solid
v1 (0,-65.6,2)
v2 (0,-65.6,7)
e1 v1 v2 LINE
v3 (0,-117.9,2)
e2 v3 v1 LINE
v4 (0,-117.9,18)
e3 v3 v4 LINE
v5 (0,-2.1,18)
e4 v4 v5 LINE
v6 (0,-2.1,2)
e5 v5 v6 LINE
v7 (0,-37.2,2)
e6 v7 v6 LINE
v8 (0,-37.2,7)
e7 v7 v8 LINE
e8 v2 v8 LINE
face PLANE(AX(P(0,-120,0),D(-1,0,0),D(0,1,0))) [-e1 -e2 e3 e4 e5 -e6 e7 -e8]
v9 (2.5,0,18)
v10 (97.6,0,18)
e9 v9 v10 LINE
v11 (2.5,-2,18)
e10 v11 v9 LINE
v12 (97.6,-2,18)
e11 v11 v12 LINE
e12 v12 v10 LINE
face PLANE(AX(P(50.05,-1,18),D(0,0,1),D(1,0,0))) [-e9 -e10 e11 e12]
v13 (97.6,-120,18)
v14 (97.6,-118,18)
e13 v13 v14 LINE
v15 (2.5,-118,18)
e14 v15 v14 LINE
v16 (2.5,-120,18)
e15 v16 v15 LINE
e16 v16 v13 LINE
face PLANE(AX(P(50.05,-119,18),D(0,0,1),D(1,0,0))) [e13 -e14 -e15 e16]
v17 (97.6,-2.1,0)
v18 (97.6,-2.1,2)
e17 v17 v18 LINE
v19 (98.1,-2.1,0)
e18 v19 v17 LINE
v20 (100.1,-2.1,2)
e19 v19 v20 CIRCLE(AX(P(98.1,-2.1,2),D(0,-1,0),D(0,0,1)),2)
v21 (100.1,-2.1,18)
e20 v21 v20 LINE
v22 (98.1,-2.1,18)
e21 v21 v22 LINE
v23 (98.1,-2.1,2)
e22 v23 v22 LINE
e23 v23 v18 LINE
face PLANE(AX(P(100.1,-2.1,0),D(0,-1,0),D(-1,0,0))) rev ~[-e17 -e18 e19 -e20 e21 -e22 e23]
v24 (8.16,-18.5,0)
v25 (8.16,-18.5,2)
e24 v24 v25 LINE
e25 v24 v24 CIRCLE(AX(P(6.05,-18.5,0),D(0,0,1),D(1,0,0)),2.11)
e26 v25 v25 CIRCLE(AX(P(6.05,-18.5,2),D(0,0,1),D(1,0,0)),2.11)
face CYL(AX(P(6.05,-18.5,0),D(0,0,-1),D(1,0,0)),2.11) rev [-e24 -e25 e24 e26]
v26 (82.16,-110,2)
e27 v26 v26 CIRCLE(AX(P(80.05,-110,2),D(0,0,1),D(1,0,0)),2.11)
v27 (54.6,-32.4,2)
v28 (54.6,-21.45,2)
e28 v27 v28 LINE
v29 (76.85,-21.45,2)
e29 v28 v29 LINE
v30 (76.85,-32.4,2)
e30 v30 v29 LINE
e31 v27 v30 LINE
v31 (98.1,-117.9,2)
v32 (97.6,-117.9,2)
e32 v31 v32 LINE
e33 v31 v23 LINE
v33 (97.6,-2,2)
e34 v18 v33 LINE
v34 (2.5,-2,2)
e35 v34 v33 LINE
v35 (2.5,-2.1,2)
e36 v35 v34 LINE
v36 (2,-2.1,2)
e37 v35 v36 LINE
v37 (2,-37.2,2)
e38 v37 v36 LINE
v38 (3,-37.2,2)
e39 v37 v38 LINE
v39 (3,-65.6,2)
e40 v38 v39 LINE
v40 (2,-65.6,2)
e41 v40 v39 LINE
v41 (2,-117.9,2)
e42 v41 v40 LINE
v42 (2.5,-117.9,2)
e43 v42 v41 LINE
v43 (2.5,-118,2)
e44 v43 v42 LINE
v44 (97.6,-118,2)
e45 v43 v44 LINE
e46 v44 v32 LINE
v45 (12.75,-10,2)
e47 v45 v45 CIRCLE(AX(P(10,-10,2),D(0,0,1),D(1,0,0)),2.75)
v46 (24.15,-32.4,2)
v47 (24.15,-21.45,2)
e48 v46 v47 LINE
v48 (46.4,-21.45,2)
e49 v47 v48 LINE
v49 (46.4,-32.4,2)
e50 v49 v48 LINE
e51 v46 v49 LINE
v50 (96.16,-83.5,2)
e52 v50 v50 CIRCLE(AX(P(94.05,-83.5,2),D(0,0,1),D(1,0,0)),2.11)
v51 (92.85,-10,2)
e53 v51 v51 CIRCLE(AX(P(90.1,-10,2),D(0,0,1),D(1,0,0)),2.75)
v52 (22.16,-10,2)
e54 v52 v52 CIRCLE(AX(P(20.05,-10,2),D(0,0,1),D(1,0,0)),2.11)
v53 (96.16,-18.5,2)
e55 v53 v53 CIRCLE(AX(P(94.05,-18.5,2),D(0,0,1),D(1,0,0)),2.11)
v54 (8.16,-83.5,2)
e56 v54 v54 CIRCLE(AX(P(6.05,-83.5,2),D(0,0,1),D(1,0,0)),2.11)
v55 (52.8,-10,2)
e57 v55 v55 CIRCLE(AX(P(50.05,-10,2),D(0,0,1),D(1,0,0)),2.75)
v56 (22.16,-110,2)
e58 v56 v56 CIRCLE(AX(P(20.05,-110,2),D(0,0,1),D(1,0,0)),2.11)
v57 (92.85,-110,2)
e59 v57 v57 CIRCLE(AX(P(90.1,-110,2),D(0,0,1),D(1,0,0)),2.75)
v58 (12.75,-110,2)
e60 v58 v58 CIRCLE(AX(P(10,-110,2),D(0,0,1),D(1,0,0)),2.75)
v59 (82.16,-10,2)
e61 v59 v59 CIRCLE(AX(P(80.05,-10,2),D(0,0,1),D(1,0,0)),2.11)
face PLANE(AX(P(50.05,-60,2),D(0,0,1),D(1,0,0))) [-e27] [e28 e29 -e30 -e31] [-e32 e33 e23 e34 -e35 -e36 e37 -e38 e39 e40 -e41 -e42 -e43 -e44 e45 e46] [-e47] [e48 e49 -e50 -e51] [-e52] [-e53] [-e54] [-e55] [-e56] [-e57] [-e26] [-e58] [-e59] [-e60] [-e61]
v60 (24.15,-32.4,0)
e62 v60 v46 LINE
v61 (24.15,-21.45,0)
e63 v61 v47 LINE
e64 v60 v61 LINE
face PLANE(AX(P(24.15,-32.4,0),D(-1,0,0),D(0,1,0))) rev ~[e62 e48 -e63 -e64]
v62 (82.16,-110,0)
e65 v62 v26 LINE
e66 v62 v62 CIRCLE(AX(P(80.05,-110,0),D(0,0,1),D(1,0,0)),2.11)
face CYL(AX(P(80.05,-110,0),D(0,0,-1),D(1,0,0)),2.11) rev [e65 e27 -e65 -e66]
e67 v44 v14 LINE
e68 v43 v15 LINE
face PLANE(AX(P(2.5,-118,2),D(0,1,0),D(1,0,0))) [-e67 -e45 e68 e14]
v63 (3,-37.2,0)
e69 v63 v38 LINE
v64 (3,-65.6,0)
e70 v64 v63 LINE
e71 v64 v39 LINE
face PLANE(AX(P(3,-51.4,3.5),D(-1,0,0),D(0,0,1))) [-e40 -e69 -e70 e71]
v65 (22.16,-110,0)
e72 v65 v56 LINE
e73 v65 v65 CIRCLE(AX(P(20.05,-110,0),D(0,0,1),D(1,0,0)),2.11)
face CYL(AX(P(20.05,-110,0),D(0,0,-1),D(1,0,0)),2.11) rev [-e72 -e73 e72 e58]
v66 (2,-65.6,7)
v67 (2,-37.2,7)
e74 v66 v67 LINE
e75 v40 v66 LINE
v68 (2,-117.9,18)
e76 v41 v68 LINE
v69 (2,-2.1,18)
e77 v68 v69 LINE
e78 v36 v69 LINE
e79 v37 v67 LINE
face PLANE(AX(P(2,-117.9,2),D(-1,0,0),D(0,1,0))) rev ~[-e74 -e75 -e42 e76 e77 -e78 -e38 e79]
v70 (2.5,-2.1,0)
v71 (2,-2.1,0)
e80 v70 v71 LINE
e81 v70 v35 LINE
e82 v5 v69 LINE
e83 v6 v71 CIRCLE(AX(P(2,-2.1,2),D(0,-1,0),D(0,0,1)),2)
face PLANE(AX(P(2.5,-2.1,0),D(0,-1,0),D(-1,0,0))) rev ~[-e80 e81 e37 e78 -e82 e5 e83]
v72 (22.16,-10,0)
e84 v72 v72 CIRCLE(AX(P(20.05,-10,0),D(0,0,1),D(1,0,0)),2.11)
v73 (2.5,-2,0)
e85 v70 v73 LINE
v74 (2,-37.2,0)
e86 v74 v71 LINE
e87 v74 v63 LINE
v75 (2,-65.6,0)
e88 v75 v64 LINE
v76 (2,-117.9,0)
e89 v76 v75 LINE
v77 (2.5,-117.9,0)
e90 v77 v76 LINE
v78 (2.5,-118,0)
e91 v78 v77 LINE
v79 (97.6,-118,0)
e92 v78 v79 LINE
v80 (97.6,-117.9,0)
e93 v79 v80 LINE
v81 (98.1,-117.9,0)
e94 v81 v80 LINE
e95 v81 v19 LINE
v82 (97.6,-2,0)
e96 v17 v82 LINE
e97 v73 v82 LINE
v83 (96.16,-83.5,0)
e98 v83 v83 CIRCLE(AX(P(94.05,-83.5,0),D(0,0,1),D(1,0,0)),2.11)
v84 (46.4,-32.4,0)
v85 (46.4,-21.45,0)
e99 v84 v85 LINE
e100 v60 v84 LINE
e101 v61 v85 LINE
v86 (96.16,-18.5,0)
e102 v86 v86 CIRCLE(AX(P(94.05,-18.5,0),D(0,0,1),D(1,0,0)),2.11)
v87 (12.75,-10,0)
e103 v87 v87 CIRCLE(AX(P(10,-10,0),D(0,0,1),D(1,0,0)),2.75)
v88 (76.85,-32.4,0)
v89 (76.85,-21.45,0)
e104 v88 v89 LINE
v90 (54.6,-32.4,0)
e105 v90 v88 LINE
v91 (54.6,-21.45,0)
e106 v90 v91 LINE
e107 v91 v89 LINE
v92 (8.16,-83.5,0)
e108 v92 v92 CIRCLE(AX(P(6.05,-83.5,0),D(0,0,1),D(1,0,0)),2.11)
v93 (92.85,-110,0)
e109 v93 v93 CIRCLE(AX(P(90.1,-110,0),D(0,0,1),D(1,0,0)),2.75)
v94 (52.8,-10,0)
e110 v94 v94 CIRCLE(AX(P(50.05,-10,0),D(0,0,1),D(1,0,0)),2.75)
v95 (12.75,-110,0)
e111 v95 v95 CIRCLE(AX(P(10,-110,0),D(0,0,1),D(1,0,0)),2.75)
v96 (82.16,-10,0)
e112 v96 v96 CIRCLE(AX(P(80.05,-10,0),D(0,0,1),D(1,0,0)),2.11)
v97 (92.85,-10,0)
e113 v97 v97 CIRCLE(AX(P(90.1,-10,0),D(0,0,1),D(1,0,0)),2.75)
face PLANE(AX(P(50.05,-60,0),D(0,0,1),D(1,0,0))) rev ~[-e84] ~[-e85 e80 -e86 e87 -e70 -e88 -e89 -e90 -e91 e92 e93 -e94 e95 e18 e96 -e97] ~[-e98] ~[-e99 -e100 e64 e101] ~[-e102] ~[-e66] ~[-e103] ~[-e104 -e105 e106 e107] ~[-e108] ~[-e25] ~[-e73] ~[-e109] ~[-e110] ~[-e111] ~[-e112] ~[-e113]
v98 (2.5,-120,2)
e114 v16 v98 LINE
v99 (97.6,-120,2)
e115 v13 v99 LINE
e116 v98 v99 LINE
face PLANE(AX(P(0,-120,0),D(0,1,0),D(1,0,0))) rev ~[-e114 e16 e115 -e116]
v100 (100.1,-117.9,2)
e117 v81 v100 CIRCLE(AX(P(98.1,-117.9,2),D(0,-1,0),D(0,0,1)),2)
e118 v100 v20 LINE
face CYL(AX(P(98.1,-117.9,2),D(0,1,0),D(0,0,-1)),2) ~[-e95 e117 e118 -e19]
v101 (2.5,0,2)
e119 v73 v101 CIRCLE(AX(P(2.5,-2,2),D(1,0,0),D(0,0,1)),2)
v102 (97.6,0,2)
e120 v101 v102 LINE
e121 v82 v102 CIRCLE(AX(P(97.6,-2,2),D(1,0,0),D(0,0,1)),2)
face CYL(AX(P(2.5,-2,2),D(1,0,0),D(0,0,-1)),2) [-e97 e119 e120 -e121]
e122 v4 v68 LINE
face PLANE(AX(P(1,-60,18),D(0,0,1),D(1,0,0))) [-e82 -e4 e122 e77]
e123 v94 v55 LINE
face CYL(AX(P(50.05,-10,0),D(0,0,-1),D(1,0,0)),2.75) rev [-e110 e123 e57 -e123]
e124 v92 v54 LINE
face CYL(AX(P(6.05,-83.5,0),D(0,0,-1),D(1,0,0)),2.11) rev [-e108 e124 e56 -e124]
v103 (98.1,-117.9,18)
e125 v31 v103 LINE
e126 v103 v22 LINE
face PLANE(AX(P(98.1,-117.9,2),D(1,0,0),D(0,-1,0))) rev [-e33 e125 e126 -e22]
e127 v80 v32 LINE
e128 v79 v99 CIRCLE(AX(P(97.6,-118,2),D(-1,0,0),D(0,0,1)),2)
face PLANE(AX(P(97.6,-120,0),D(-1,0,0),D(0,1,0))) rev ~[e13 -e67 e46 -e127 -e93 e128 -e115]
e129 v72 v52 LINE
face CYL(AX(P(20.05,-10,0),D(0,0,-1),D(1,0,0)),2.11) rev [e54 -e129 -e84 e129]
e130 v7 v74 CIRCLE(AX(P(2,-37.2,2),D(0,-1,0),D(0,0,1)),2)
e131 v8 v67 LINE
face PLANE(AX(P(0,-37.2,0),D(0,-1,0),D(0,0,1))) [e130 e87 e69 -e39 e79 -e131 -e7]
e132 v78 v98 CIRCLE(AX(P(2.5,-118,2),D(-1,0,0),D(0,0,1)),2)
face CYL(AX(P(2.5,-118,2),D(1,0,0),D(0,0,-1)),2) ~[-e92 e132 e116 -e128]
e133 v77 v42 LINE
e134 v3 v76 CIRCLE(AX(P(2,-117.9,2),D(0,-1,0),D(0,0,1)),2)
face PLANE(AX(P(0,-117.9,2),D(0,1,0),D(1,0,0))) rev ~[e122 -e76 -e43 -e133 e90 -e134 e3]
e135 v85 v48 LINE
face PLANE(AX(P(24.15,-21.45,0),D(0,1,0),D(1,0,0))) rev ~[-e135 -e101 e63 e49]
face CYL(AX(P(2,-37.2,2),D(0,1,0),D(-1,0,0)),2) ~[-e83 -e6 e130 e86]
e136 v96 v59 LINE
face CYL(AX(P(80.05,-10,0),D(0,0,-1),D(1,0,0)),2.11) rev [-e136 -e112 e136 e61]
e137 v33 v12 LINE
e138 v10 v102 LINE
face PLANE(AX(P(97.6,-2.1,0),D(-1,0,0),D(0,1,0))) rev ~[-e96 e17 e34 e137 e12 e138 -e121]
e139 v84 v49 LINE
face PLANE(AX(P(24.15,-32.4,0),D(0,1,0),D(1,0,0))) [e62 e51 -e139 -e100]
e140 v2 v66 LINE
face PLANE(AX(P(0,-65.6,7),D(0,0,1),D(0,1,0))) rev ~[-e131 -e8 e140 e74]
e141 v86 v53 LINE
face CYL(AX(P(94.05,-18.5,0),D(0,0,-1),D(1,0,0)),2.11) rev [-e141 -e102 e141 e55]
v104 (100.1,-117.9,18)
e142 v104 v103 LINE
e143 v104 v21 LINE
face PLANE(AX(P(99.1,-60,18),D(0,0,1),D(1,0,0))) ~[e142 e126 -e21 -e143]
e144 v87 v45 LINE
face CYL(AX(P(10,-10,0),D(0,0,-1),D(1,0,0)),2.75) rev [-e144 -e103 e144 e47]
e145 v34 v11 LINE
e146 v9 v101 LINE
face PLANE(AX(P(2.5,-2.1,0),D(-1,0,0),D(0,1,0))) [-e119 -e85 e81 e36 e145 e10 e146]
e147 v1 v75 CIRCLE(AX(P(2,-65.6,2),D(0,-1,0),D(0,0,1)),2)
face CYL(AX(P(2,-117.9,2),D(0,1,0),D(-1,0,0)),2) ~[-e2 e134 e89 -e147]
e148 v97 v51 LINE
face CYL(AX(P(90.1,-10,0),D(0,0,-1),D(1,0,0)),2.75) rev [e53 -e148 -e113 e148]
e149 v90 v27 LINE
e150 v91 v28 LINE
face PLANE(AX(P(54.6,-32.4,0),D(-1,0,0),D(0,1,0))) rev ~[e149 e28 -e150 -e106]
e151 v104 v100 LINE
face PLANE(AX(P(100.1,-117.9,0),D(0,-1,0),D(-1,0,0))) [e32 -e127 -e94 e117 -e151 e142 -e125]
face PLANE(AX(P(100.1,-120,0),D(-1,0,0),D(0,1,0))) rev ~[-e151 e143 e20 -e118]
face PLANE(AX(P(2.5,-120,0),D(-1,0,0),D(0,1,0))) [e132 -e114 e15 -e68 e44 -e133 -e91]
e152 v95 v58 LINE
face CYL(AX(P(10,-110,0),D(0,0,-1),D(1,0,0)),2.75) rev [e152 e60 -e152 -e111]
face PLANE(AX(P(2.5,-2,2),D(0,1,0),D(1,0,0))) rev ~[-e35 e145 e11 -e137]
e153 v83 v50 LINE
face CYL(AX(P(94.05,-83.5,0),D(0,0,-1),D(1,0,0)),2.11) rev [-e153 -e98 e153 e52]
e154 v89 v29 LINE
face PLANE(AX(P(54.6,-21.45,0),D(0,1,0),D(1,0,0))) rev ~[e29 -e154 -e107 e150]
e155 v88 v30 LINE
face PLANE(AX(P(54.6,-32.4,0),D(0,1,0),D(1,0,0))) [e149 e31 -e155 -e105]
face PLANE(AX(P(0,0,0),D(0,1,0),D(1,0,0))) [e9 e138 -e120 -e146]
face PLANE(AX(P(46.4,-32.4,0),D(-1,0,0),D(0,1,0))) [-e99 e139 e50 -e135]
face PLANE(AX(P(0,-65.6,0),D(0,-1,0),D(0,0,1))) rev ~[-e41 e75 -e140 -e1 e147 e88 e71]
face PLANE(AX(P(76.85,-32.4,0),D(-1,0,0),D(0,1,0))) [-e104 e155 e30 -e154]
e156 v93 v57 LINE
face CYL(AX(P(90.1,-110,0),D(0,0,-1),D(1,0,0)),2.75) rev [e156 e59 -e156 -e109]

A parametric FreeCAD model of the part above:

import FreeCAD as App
import Part
import Sketcher
from FreeCAD import Vector


def edges_at(feature, points):
    """Names of the edges that pass closest to the given points."""
    edges = feature.Shape.Edges
    near = lambda p: min(range(len(edges)), key=lambda i: edges[i].distToShape(Part.Vertex(*p))[0])
    return sorted({f"Edge{near(p) + 1}" for p in points})


def add_polygon(sketch, points):
    """Adds a closed chain of lines whose ends are joined by coincident constraints."""
    first, n = sketch.GeometryCount, len(points)
    for a, b in zip(points, points[1:] + points[:1]):
        sketch.addGeometry(Part.LineSegment(App.Vector(*a, 0), App.Vector(*b, 0)), False)
    for i in range(n):
        sketch.addConstraint(Sketcher.Constraint("Coincident", first + i, 2, first + (i + 1) % n, 1))

doc = App.newDocument("Part")
body = doc.addObject("PartDesign::Body", "Body")

sketch1 = doc.addObject("Sketcher::SketchObject", "Sketch")
body.addObject(sketch1)
sketch1.AttachmentSupport = (doc.XY_Plane, [""])
sketch1.MapMode = "FlatFace"
add_polygon(sketch1, [(0, 0), (0, -120), (100.1, -120), (100.1, 0)])
sketch1.addGeometry(Part.Circle(Vector(10, -110, 0), Vector(0, 0, 1), 2.8), False)
sketch1.addGeometry(Part.Circle(Vector(20.1, -110, 0), Vector(0, 0, 1), 2.1), False)
sketch1.addGeometry(Part.Circle(Vector(6, -83.5, 0), Vector(0, 0, 1), 2.1), False)
sketch1.addGeometry(Part.Circle(Vector(80, -110, 0), Vector(0, 0, 1), 2.1), False)
sketch1.addGeometry(Part.Circle(Vector(90.1, -110, 0), Vector(0, 0, 1), 2.8), False)
sketch1.addGeometry(Part.Circle(Vector(94, -83.5, 0), Vector(0, 0, 1), 2.1), False)
sketch1.addGeometry(Part.Circle(Vector(6, -18.5, 0), Vector(0, 0, 1), 2.1), False)
sketch1.addGeometry(Part.Circle(Vector(10, -10, 0), Vector(0, 0, 1), 2.8), False)
sketch1.addGeometry(Part.Circle(Vector(20.1, -10, 0), Vector(0, 0, 1), 2.1), False)
add_polygon(sketch1, [(46.4, -32.4), (24.1, -32.4), (24.1, -21.4), (46.4, -21.4)])
add_polygon(sketch1, [(76.8, -32.4), (54.6, -32.4), (54.6, -21.4), (76.8, -21.4)])
sketch1.addGeometry(Part.Circle(Vector(50, -10, 0), Vector(0, 0, 1), 2.8), False)
sketch1.addGeometry(Part.Circle(Vector(80, -10, 0), Vector(0, 0, 1), 2.1), False)
sketch1.addGeometry(Part.Circle(Vector(94, -18.5, 0), Vector(0, 0, 1), 2.1), False)
sketch1.addGeometry(Part.Circle(Vector(90.1, -10, 0), Vector(0, 0, 1), 2.8), False)
sketch1.addConstraint([
    Sketcher.Constraint("Vertical", 0),
    Sketcher.Constraint("Horizontal", 1),
    Sketcher.Constraint("Vertical", 2),
    Sketcher.Constraint("Horizontal", 3),
    Sketcher.Constraint("Horizontal", 13),
    Sketcher.Constraint("Vertical", 14),
    Sketcher.Constraint("Horizontal", 15),
    Sketcher.Constraint("Vertical", 16),
    Sketcher.Constraint("Horizontal", 17),
    Sketcher.Constraint("Vertical", 18),
    Sketcher.Constraint("Horizontal", 19),
    Sketcher.Constraint("Vertical", 20),
    Sketcher.Constraint("Coincident", 3, 2, -1, 1),
    Sketcher.Constraint("Equal", 5, 6),
    Sketcher.Constraint("Equal", 6, 7),
    Sketcher.Constraint("Equal", 4, 8),
    Sketcher.Constraint("Equal", 7, 9),
    Sketcher.Constraint("Equal", 9, 10),
    Sketcher.Constraint("Equal", 8, 11),
    Sketcher.Constraint("Equal", 10, 12),
    Sketcher.Constraint("Equal", 11, 21),
    Sketcher.Constraint("Equal", 12, 22),
    Sketcher.Constraint("Equal", 22, 23),
    Sketcher.Constraint("Equal", 21, 24),
    Sketcher.Constraint("Horizontal", 4, 3, 5, 3),
    Sketcher.Constraint("Horizontal", 5, 3, 7, 3),
    Sketcher.Constraint("Horizontal", 7, 3, 8, 3),
    Sketcher.Constraint("Horizontal", 6, 3, 9, 3),
    Sketcher.Constraint("Horizontal", 11, 3, 12, 3),
    Sketcher.Constraint("Horizontal", 12, 3, 21, 3),
    Sketcher.Constraint("Horizontal", 21, 3, 22, 3),
    Sketcher.Constraint("Horizontal", 10, 3, 23, 3),
    Sketcher.Constraint("Horizontal", 22, 3, 24, 3),
    Sketcher.Constraint("Horizontal", 16, 2, 17, 2),
    Sketcher.Constraint("Horizontal", 15, 2, 18, 2),
    Sketcher.Constraint("Vertical", 6, 3, 10, 3),
    Sketcher.Constraint("Vertical", 4, 3, 11, 3),
    Sketcher.Constraint("Vertical", 5, 3, 12, 3),
    Sketcher.Constraint("Vertical", 7, 3, 22, 3),
    Sketcher.Constraint("Vertical", 9, 3, 23, 3),
    Sketcher.Constraint("Vertical", 8, 3, 24, 3),
    Sketcher.Constraint("Equal", 15, 17),
    Sketcher.Constraint("Diameter", 4, 5.5),
    Sketcher.Constraint("Diameter", 5, 4.22),
    Sketcher.Constraint("DistanceY", 0, 2, 0, 1, 120.0),
    Sketcher.Constraint("DistanceX", 1, 1, 1, 2, 100.1),
    Sketcher.Constraint("DistanceX", -1, 1, 4, 3, 10.0),
    Sketcher.Constraint("DistanceY", 4, 3, -1, 1, 110.0),
    Sketcher.Constraint("DistanceY", 11, 3, -1, 1, 10.0),
    Sketcher.Constraint("DistanceX", 6, 3, 5, 3, 14.0),
    Sketcher.Constraint("DistanceX", 5, 3, 7, 3, 60.0),
    Sketcher.Constraint("DistanceX", 7, 3, 9, 3, 14.0),
    Sketcher.Constraint("DistanceY", 6, 3, 10, 3, 65.0),
    Sketcher.Constraint("DistanceX", 12, 3, 21, 3, 30.0),
    Sketcher.Constraint("DistanceX", 8, 3, 1, 2, 10.0),
    Sketcher.Constraint("DistanceX", 13, 2, 13, 1, 22.25),
    Sketcher.Constraint("DistanceY", 14, 1, 14, 2, 10.95),
    Sketcher.Constraint("DistanceY", 6, 3, -1, 1, 83.5),
    Sketcher.Constraint("DistanceY", 13, 2, -1, 1, 32.4),
    Sketcher.Constraint("DistanceX", -1, 1, 15, 2, 46.4),
    Sketcher.Constraint("DistanceX", -1, 1, 17, 2, 54.6),
    Sketcher.Constraint("DistanceX", 12, 3, 13, 2, 4.1),
])
pad1 = doc.addObject("PartDesign::Pad", "Pad")
body.addObject(pad1)
pad1.Profile = sketch1
pad1.Length = 2

sketch2 = doc.addObject("Sketcher::SketchObject", "Sketch001")
body.addObject(sketch2)
sketch2.AttachmentSupport = (doc.XY_Plane, [""])
sketch2.MapMode = "FlatFace"
sketch2.AttachmentOffset = App.Placement(Vector(0, 0, 2), App.Rotation())
add_polygon(sketch2, [(0, -2.1), (0, -117.9), (2, -117.9), (2, -2.1)])
sketch2.addConstraint([
    Sketcher.Constraint("Vertical", 0),
    Sketcher.Constraint("Horizontal", 1),
    Sketcher.Constraint("Vertical", 2),
    Sketcher.Constraint("Horizontal", 3),
    Sketcher.Constraint("PointOnObject", 0, 2, -2),
    Sketcher.Constraint("DistanceX", 1, 1, 1, 2, 2.0),
    Sketcher.Constraint("DistanceY", 0, 2, 0, 1, 115.8),
    Sketcher.Constraint("DistanceY", 0, 2, -1, 1, 117.9),
])
pad2 = doc.addObject("PartDesign::Pad", "Pad001")
body.addObject(pad2)
pad2.Profile = sketch2
pad2.Length = 16
doc.recompute()

datumplane = doc.addObject("PartDesign::Plane", "DatumPlane")
body.addObject(datumplane)
datumplane.AttachmentSupport = (doc.YZ_Plane, [""])
datumplane.MapMode = "FlatFace"
datumplane.AttachmentOffset = App.Placement(Vector(0, 0, 50.05), App.Rotation())
mirrored = doc.addObject("PartDesign::Mirrored", "Mirrored")
body.addObject(mirrored)
mirrored.Originals = [pad2]
mirrored.MirrorPlane = (datumplane, [""])
body.Tip = mirrored

sketch3 = doc.addObject("Sketcher::SketchObject", "Sketch002")
body.addObject(sketch3)
sketch3.AttachmentSupport = (doc.XY_Plane, [""])
sketch3.MapMode = "FlatFace"
sketch3.AttachmentOffset = App.Placement(Vector(0, 0, 2), App.Rotation())
add_polygon(sketch3, [(2.5, 0), (2.5, -2), (97.6, -2), (97.6, 0)])
add_polygon(sketch3, [(2.5, -118), (2.5, -120), (97.6, -120), (97.6, -118)])
sketch3.addConstraint([
    Sketcher.Constraint("Vertical", 0),
    Sketcher.Constraint("Horizontal", 1),
    Sketcher.Constraint("Vertical", 2),
    Sketcher.Constraint("Horizontal", 3),
    Sketcher.Constraint("Vertical", 4),
    Sketcher.Constraint("Horizontal", 5),
    Sketcher.Constraint("Vertical", 6),
    Sketcher.Constraint("Horizontal", 7),
    Sketcher.Constraint("PointOnObject", 2, 2, -1),
    Sketcher.Constraint("Vertical", 3, 2, 4, 2),
    Sketcher.Constraint("Vertical", 2, 2, 5, 2),
    Sketcher.Constraint("Equal", 2, 4),
    Sketcher.Constraint("DistanceY", 0, 2, 0, 1, 2.0),
    Sketcher.Constraint("DistanceX", 1, 1, 1, 2, 95.1),
    Sketcher.Constraint("DistanceY", 4, 2, -1, 1, 120.0),
    Sketcher.Constraint("DistanceX", -1, 1, 0, 2, 2.5),
])
pad3 = doc.addObject("PartDesign::Pad", "Pad002")
body.addObject(pad3)
pad3.Profile = sketch3
pad3.Length = 16

sketch4 = doc.addObject("Sketcher::SketchObject", "Sketch003")
body.addObject(sketch4)
sketch4.AttachmentSupport = (doc.XY_Plane, [""])
sketch4.MapMode = "FlatFace"
add_polygon(sketch4, [(2.5, 0), (2.5, -2.1), (0, -2.1), (0, 0)])
add_polygon(sketch4, [(100.1, -117.9), (100.1, -120), (97.6, -120), (97.6, -117.9)])
add_polygon(sketch4, [(2.5, -117.9), (2.5, -120), (0, -120), (0, -117.9)])
add_polygon(sketch4, [(100.1, 0), (100.1, -2.1), (97.6, -2.1), (97.6, 0)])
sketch4.addConstraint([
    Sketcher.Constraint("Vertical", 0),
    Sketcher.Constraint("Horizontal", 1),
    Sketcher.Constraint("Vertical", 2),
    Sketcher.Constraint("Horizontal", 3),
    Sketcher.Constraint("Vertical", 4),
    Sketcher.Constraint("Horizontal", 5),
    Sketcher.Constraint("Vertical", 6),
    Sketcher.Constraint("Horizontal", 7),
    Sketcher.Constraint("Vertical", 8),
    Sketcher.Constraint("Horizontal", 9),
    Sketcher.Constraint("Vertical", 10),
    Sketcher.Constraint("Horizontal", 11),
    Sketcher.Constraint("Vertical", 12),
    Sketcher.Constraint("Horizontal", 13),
    Sketcher.Constraint("Vertical", 14),
    Sketcher.Constraint("Horizontal", 15),
    Sketcher.Constraint("Coincident", 2, 2, -1, 1),
    Sketcher.Constraint("PointOnObject", 9, 2, -2),
    Sketcher.Constraint("PointOnObject", 14, 2, -1),
    Sketcher.Constraint("Horizontal", 5, 2, 8, 2),
    Sketcher.Constraint("Horizontal", 7, 2, 10, 2),
    Sketcher.Constraint("Horizontal", 1, 2, 12, 2),
    Sketcher.Constraint("Vertical", 3, 2, 8, 2),
    Sketcher.Constraint("Vertical", 7, 2, 12, 2),
    Sketcher.Constraint("Vertical", 6, 2, 13, 2),
    Sketcher.Constraint("Equal", 3, 5),
    Sketcher.Constraint("Equal", 2, 4),
    Sketcher.Constraint("DistanceX", 1, 2, 1, 1, 2.5),
    Sketcher.Constraint("DistanceY", 0, 2, 0, 1, 2.1),
    Sketcher.Constraint("DistanceY", 4, 2, -1, 1, 120.0),
    Sketcher.Constraint("DistanceX", -1, 1, 4, 2, 100.1),
])
pocket1 = doc.addObject("PartDesign::Pocket", "Pocket")
body.addObject(pocket1)
pocket1.Profile = sketch4
pocket1.Length = 2
pocket1.Reversed = True

sketch5 = doc.addObject("Sketcher::SketchObject", "Sketch004")
body.addObject(sketch5)
sketch5.AttachmentSupport = (doc.YZ_Plane, [""])
sketch5.MapMode = "FlatFace"
add_polygon(sketch5, [(-37, 0), (-66, 0), (-66, 7), (-37, 7)])
sketch5.addConstraint([
    Sketcher.Constraint("Horizontal", 0),
    Sketcher.Constraint("Vertical", 1),
    Sketcher.Constraint("Horizontal", 2),
    Sketcher.Constraint("Vertical", 3),
    Sketcher.Constraint("PointOnObject", 0, 2, -1),
    Sketcher.Constraint("DistanceY", 1, 1, 1, 2, 7.0),
    Sketcher.Constraint("DistanceX", 0, 2, 0, 1, 28.4),
    Sketcher.Constraint("DistanceX", 0, 2, -1, 1, 65.6),
])
pocket2 = doc.addObject("PartDesign::Pocket", "Pocket001")
body.addObject(pocket2)
pocket2.Profile = sketch5
pocket2.Length = 3
pocket2.Reversed = True
doc.recompute()

fillet = doc.addObject("PartDesign::Fillet", "Fillet")
body.addObject(fillet)
fillet.Base = (pocket2, edges_at(pocket2, [
    (0, -19.65, 0),
    (100.1, -60, 0),
    (50.05, -120, 0),
    (50.05, 0, 0),
    (0, -91.75, 0),
]))
fillet.Radius = 2

doc.recompute()
